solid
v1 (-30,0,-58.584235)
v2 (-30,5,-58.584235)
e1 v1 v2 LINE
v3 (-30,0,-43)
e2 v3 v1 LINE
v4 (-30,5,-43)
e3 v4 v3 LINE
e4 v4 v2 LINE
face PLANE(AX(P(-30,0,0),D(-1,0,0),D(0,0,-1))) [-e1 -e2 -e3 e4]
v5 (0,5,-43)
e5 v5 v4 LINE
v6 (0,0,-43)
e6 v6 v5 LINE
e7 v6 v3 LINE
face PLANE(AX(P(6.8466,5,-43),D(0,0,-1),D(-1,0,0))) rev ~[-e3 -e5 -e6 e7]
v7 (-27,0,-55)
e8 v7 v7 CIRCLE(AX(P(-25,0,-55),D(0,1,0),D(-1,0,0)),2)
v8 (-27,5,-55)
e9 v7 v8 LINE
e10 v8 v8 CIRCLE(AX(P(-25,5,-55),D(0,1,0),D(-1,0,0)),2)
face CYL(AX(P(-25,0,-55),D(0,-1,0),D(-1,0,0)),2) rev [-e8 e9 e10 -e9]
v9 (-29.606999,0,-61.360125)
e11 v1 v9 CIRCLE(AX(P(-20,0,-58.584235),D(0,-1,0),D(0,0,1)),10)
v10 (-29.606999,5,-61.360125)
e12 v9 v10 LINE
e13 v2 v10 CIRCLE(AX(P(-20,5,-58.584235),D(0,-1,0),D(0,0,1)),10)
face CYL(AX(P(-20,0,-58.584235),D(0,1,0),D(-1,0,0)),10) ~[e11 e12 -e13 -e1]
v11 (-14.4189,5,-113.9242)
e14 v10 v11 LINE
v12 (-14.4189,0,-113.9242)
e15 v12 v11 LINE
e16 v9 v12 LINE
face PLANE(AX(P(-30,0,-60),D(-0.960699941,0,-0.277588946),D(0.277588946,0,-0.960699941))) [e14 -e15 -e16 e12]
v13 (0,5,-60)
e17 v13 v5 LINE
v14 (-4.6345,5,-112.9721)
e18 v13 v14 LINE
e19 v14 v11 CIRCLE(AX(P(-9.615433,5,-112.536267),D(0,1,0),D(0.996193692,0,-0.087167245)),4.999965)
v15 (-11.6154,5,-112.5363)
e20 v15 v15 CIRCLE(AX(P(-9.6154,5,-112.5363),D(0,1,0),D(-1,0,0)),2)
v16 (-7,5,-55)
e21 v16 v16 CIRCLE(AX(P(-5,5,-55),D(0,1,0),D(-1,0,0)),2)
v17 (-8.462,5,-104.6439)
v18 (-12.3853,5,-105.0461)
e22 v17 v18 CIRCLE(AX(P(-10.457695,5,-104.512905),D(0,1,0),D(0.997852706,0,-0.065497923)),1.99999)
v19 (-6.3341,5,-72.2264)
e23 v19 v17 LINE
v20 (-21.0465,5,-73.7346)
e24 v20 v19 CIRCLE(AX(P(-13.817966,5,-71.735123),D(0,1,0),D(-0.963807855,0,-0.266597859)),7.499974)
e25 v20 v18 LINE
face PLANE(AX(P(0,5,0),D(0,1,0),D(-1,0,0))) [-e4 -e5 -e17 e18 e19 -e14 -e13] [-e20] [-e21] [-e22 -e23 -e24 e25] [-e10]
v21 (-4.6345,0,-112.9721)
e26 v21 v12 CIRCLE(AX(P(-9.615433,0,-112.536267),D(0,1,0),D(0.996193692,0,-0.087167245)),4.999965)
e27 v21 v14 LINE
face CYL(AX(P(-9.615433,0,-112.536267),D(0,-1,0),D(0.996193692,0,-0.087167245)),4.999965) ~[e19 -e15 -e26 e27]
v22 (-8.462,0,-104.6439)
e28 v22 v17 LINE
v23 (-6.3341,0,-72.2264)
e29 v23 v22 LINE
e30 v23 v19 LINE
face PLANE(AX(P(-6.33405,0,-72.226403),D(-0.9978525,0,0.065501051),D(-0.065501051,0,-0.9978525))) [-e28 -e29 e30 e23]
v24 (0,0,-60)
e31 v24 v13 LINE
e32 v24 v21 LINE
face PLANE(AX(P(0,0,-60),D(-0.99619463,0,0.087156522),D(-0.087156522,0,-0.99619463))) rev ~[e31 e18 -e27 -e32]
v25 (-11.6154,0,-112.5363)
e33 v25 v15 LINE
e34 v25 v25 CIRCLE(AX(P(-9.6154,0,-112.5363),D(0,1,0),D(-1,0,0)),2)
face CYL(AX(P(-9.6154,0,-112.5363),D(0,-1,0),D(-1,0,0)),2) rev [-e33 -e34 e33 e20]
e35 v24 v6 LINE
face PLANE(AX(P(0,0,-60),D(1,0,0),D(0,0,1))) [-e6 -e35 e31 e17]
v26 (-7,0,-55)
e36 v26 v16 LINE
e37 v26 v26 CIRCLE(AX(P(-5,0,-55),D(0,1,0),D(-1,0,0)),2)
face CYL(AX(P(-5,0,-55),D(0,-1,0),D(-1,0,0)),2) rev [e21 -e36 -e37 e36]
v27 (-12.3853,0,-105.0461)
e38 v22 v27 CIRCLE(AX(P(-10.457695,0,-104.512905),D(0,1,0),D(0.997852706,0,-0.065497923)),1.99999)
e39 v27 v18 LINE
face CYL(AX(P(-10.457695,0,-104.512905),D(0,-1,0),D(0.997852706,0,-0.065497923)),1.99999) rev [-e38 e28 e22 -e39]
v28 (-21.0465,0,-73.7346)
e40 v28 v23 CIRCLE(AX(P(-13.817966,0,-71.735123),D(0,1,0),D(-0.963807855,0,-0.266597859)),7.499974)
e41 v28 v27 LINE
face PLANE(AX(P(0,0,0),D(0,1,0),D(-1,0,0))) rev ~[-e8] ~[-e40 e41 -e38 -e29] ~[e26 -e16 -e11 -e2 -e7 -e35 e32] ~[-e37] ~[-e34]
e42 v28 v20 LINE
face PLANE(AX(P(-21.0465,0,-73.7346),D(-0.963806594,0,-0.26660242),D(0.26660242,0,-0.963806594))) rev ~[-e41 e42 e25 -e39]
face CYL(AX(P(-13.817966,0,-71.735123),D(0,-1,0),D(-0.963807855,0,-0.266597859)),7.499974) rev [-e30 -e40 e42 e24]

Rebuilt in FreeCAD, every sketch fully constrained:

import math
import FreeCAD as App
import Part
import Sketcher
from FreeCAD import Vector
Q = App.Units.Quantity


def edges_at(feature, points):
    """Names of the edges that pass closest to the given points."""
    edges = feature.Shape.Edges
    near = lambda p: min(range(len(edges)), key=lambda i: edges[i].distToShape(Part.Vertex(*p))[0])
    return sorted({f"Edge{near(p) + 1}" for p in points})

doc = App.newDocument("Part")
params = doc.addObject("Spreadsheet::Sheet", "Params")
for row, (alias, value) in enumerate([
    ("sketch1_diameter", "4 mm"),
    ("sketch1_radius", "5 mm"),
    ("sketch1_radius2", "7.5 mm"),
    ("sketch1_height", "60 mm"),
    ("sketch1_length", "56.13 mm"),
    ("pad1_length", "5 mm"),
    ("fillet_radius", "10 mm"),
    ("pocket1_length", "10 mm"),
], start=1):
    params.set(f"A{row}", alias)
    params.set(f"B{row}", "=" + value)
    params.setAlias(f"B{row}", alias)

body = doc.addObject("PartDesign::Body", "Body")

# Sketch on XZ plane
sketch1 = body.newObject("Sketcher::SketchObject", "Sketch")
sketch1.AttachmentSupport = (doc.getObject("XZ_Plane"), [""])
sketch1.MapMode = "FlatFace"
sketch1.addGeometry([
    Part.LineSegment(Vector(-4.6, 53, 0), Vector(0, 0, 0)),  # 0
    Part.LineSegment(Vector(0, 0, 0), Vector(0, -60, 0)),  # 1
    Part.LineSegment(Vector(0, -60, 0), Vector(-4.6, -113, 0)),  # 2
    Part.ArcOfCircle(Part.Circle(Vector(-9.6, -112.5, 0), Vector(0, 0, 1), 5), math.radians(-164), math.radians(-5)),  # 3
    Part.LineSegment(Vector(-14.4, -113.9, 0), Vector(-30, -60, 0)),  # 4
    Part.LineSegment(Vector(-30, -60, 0), Vector(-30, 0, 0)),  # 5
    Part.LineSegment(Vector(-30, 0, 0), Vector(-14.4, 53.9, 0)),  # 6
    Part.ArcOfCircle(Part.Circle(Vector(-9.6, 52.5, 0), Vector(0, 0, 1), 5), math.radians(5), math.radians(164)),  # 7
    Part.ArcOfCircle(Part.Circle(Vector(-13.8, 11.7, 0), Vector(0, 0, 1), 7.5), math.radians(165), math.radians(364)),  # 8
    Part.LineSegment(Vector(-6.3, 12.2, 0), Vector(-8.5, 44.6, 0)),  # 9
    Part.ArcOfCircle(Part.Circle(Vector(-10.5, 44.5, 0), Vector(0, 0, 1), 2), math.radians(4), math.radians(165)),  # 10
    Part.LineSegment(Vector(-12.4, 45, 0), Vector(-21, 13.7, 0)),  # 11
    Part.Circle(Vector(-9.6, 52.5, 0), Vector(0, 0, 1), 2),  # 12
    Part.Circle(Vector(-25, -5, 0), Vector(0, 0, 1), 2),  # 13
    Part.Circle(Vector(-5, -55, 0), Vector(0, 0, 1), 2),  # 14
    Part.Circle(Vector(-25, -55, 0), Vector(0, 0, 1), 2),  # 15
    Part.Circle(Vector(-5, -5, 0), Vector(0, 0, 1), 2),  # 16
    Part.LineSegment(Vector(-21, -73.7, 0), Vector(-12.4, -105, 0)),  # 17
    Part.ArcOfCircle(Part.Circle(Vector(-10.5, -104.5, 0), Vector(0, 0, 1), 2), math.radians(-165), math.radians(-4)),  # 18
    Part.LineSegment(Vector(-8.5, -104.6, 0), Vector(-6.3, -72.2, 0)),  # 19
    Part.ArcOfCircle(Part.Circle(Vector(-13.8, -71.7, 0), Vector(0, 0, 1), 7.5), math.radians(-4), math.radians(195)),  # 20
    Part.Circle(Vector(-9.6, -112.5, 0), Vector(0, 0, 1), 2),  # 21
], False)
sketch1.addConstraint([
    Sketcher.Constraint("Coincident", 0, 2, 1, 1),
    Sketcher.Constraint("Coincident", 1, 2, 2, 1),
    Sketcher.Constraint("Tangent", 2, 2, 3, 2),
    Sketcher.Constraint("Tangent", 3, 1, 4, 1),
    Sketcher.Constraint("Coincident", 4, 2, 5, 1),
    Sketcher.Constraint("Coincident", 5, 2, 6, 1),
    Sketcher.Constraint("Tangent", 6, 2, 7, 2),
    Sketcher.Constraint("Tangent", 7, 1, 0, 1),
    Sketcher.Constraint("Tangent", 8, 2, 9, 1),
    Sketcher.Constraint("Tangent", 9, 2, 10, 1),
    Sketcher.Constraint("Tangent", 10, 2, 11, 1),
    Sketcher.Constraint("Tangent", 11, 2, 8, 1),
    Sketcher.Constraint("Tangent", 17, 2, 18, 1),
    Sketcher.Constraint("Tangent", 18, 2, 19, 1),
    Sketcher.Constraint("Tangent", 19, 2, 20, 1),
    Sketcher.Constraint("Tangent", 20, 2, 17, 1),
    Sketcher.Constraint("Vertical", 1),
    Sketcher.Constraint("Vertical", 5),
    Sketcher.Constraint("Coincident", 0, 2, -1, 1),
    Sketcher.Constraint("Coincident", 12, 3, 7, 3),
    Sketcher.Constraint("Coincident", 21, 3, 3, 3),
    Sketcher.Constraint("Equal", 3, 7),
    Sketcher.Constraint("Equal", 10, 12),
    Sketcher.Constraint("Equal", 12, 13),
    Sketcher.Constraint("Equal", 13, 14),
    Sketcher.Constraint("Equal", 14, 15),
    Sketcher.Constraint("Equal", 15, 16),
    Sketcher.Constraint("Equal", 16, 18),
    Sketcher.Constraint("Equal", 8, 20),
    Sketcher.Constraint("Equal", 18, 21),
    Sketcher.Constraint("PointOnObject", 5, 2, -1),
    Sketcher.Constraint("Horizontal", 14, 3, 15, 3),
    Sketcher.Constraint("Horizontal", 13, 3, 16, 3),
    Sketcher.Constraint("Horizontal", 1, 2, 4, 2),
    Sketcher.Constraint("Vertical", 3, 3, 7, 3),
    Sketcher.Constraint("Vertical", 13, 3, 15, 3),
    Sketcher.Constraint("Vertical", 14, 3, 16, 3),
    Sketcher.Constraint("Vertical", 10, 3, 18, 3),
    Sketcher.Constraint("Vertical", 8, 3, 20, 3),
    Sketcher.Constraint("Vertical", 3, 1, 6, 2),
    Sketcher.Constraint("Vertical", 10, 2, 17, 2),
    Sketcher.Constraint("Diameter", 12, 4.0),
    Sketcher.Constraint("Radius", 3, 5.0),
    Sketcher.Constraint("Radius", 8, 7.5),
    Sketcher.Constraint("DistanceY", 1, 2, 1, 1, 60.0),
    Sketcher.Constraint("Angle", 0, Q("-85 deg")),
    Sketcher.Constraint("DistanceY", 13, 3, -1, 1, 5.0),
    Sketcher.Constraint("DistanceX", 14, 3, -1, 1, 5.0),
    Sketcher.Constraint("DistanceX", 4, 2, -1, 1, 30.0),
    Sketcher.Constraint("DistanceY", 1, 2, 14, 3, 5.0),
    Sketcher.Constraint("DistanceX", 4, 2, 15, 3, 5.0),
    Sketcher.Constraint("Distance", 4, 56.13),
    Sketcher.Constraint("DistanceX", 10, 2, 7, 3, 2.77),
    Sketcher.Constraint("DistanceX", 8, 3, -1, 1, 13.818),
    Sketcher.Constraint("DistanceY", -1, 1, 8, 3, 11.735),
    Sketcher.Constraint("DistanceY", -1, 1, 10, 3, 44.513),
    Sketcher.Constraint("DistanceY", 18, 3, -1, 1, 104.513),
])
sketch1.setExpression("Constraints[41]", "Params.sketch1_diameter")
sketch1.setExpression("Constraints[42]", "Params.sketch1_radius")
sketch1.setExpression("Constraints[43]", "Params.sketch1_radius2")
sketch1.setExpression("Constraints[44]", "Params.sketch1_height")
sketch1.setExpression("Constraints[51]", "Params.sketch1_length")
pad1 = body.newObject("PartDesign::Pad", "Pad")
pad1.Profile = sketch1
pad1.setExpression("Length", "Params.pad1_length")
pad1.Reversed = True
doc.recompute()

fillet = body.newObject("PartDesign::Fillet", "Fillet")
fillet.Base = (pad1, edges_at(pad1, [(-30, 2.5, 0), (-30, 2.5, -60)]))
fillet.setExpression("Radius", "Params.fillet_radius")

# Sketch on XZ plane
sketch2 = body.newObject("Sketcher::SketchObject", "Sketch001")
sketch2.AttachmentSupport = (doc.getObject("XZ_Plane"), [""])
sketch2.MapMode = "FlatFace"
sketch2.AttachmentOffset = App.Placement(Vector(0, 0, -5), App.Rotation())
sketch2.addGeometry([
    Part.LineSegment(Vector(7, 75, 0), Vector(7, -43, 0)),
    Part.LineSegment(Vector(7, -43, 0), Vector(-33, -43, 0)),
    Part.LineSegment(Vector(-33, -43, 0), Vector(-33, 75, 0)),
    Part.LineSegment(Vector(-33, 75, 0), Vector(7, 75, 0)),
], False)
sketch2.addConstraint([
    Sketcher.Constraint("Coincident", 0, 2, 1, 1),
    Sketcher.Constraint("Coincident", 1, 2, 2, 1),
    Sketcher.Constraint("Coincident", 2, 2, 3, 1),
    Sketcher.Constraint("Coincident", 3, 2, 0, 1),
    Sketcher.Constraint("Vertical", 0),
    Sketcher.Constraint("Horizontal", 1),
    Sketcher.Constraint("Vertical", 2),
    Sketcher.Constraint("Horizontal", 3),
    Sketcher.Constraint("DistanceY", 0, 2, -1, 1, 43.0),
    Sketcher.Constraint("DistanceX", 1, 2, 1, 1, 40.309),
    Sketcher.Constraint("DistanceY", 0, 2, 0, 1, 117.7352),
    Sketcher.Constraint("DistanceX", -1, 1, 0, 2, 6.8466),
])
pocket1 = body.newObject("PartDesign::Pocket", "Pocket")
pocket1.Profile = sketch2
pocket1.setExpression("Length", "Params.pocket1_length")
pocket1.Reversed = True

doc.recompute()
